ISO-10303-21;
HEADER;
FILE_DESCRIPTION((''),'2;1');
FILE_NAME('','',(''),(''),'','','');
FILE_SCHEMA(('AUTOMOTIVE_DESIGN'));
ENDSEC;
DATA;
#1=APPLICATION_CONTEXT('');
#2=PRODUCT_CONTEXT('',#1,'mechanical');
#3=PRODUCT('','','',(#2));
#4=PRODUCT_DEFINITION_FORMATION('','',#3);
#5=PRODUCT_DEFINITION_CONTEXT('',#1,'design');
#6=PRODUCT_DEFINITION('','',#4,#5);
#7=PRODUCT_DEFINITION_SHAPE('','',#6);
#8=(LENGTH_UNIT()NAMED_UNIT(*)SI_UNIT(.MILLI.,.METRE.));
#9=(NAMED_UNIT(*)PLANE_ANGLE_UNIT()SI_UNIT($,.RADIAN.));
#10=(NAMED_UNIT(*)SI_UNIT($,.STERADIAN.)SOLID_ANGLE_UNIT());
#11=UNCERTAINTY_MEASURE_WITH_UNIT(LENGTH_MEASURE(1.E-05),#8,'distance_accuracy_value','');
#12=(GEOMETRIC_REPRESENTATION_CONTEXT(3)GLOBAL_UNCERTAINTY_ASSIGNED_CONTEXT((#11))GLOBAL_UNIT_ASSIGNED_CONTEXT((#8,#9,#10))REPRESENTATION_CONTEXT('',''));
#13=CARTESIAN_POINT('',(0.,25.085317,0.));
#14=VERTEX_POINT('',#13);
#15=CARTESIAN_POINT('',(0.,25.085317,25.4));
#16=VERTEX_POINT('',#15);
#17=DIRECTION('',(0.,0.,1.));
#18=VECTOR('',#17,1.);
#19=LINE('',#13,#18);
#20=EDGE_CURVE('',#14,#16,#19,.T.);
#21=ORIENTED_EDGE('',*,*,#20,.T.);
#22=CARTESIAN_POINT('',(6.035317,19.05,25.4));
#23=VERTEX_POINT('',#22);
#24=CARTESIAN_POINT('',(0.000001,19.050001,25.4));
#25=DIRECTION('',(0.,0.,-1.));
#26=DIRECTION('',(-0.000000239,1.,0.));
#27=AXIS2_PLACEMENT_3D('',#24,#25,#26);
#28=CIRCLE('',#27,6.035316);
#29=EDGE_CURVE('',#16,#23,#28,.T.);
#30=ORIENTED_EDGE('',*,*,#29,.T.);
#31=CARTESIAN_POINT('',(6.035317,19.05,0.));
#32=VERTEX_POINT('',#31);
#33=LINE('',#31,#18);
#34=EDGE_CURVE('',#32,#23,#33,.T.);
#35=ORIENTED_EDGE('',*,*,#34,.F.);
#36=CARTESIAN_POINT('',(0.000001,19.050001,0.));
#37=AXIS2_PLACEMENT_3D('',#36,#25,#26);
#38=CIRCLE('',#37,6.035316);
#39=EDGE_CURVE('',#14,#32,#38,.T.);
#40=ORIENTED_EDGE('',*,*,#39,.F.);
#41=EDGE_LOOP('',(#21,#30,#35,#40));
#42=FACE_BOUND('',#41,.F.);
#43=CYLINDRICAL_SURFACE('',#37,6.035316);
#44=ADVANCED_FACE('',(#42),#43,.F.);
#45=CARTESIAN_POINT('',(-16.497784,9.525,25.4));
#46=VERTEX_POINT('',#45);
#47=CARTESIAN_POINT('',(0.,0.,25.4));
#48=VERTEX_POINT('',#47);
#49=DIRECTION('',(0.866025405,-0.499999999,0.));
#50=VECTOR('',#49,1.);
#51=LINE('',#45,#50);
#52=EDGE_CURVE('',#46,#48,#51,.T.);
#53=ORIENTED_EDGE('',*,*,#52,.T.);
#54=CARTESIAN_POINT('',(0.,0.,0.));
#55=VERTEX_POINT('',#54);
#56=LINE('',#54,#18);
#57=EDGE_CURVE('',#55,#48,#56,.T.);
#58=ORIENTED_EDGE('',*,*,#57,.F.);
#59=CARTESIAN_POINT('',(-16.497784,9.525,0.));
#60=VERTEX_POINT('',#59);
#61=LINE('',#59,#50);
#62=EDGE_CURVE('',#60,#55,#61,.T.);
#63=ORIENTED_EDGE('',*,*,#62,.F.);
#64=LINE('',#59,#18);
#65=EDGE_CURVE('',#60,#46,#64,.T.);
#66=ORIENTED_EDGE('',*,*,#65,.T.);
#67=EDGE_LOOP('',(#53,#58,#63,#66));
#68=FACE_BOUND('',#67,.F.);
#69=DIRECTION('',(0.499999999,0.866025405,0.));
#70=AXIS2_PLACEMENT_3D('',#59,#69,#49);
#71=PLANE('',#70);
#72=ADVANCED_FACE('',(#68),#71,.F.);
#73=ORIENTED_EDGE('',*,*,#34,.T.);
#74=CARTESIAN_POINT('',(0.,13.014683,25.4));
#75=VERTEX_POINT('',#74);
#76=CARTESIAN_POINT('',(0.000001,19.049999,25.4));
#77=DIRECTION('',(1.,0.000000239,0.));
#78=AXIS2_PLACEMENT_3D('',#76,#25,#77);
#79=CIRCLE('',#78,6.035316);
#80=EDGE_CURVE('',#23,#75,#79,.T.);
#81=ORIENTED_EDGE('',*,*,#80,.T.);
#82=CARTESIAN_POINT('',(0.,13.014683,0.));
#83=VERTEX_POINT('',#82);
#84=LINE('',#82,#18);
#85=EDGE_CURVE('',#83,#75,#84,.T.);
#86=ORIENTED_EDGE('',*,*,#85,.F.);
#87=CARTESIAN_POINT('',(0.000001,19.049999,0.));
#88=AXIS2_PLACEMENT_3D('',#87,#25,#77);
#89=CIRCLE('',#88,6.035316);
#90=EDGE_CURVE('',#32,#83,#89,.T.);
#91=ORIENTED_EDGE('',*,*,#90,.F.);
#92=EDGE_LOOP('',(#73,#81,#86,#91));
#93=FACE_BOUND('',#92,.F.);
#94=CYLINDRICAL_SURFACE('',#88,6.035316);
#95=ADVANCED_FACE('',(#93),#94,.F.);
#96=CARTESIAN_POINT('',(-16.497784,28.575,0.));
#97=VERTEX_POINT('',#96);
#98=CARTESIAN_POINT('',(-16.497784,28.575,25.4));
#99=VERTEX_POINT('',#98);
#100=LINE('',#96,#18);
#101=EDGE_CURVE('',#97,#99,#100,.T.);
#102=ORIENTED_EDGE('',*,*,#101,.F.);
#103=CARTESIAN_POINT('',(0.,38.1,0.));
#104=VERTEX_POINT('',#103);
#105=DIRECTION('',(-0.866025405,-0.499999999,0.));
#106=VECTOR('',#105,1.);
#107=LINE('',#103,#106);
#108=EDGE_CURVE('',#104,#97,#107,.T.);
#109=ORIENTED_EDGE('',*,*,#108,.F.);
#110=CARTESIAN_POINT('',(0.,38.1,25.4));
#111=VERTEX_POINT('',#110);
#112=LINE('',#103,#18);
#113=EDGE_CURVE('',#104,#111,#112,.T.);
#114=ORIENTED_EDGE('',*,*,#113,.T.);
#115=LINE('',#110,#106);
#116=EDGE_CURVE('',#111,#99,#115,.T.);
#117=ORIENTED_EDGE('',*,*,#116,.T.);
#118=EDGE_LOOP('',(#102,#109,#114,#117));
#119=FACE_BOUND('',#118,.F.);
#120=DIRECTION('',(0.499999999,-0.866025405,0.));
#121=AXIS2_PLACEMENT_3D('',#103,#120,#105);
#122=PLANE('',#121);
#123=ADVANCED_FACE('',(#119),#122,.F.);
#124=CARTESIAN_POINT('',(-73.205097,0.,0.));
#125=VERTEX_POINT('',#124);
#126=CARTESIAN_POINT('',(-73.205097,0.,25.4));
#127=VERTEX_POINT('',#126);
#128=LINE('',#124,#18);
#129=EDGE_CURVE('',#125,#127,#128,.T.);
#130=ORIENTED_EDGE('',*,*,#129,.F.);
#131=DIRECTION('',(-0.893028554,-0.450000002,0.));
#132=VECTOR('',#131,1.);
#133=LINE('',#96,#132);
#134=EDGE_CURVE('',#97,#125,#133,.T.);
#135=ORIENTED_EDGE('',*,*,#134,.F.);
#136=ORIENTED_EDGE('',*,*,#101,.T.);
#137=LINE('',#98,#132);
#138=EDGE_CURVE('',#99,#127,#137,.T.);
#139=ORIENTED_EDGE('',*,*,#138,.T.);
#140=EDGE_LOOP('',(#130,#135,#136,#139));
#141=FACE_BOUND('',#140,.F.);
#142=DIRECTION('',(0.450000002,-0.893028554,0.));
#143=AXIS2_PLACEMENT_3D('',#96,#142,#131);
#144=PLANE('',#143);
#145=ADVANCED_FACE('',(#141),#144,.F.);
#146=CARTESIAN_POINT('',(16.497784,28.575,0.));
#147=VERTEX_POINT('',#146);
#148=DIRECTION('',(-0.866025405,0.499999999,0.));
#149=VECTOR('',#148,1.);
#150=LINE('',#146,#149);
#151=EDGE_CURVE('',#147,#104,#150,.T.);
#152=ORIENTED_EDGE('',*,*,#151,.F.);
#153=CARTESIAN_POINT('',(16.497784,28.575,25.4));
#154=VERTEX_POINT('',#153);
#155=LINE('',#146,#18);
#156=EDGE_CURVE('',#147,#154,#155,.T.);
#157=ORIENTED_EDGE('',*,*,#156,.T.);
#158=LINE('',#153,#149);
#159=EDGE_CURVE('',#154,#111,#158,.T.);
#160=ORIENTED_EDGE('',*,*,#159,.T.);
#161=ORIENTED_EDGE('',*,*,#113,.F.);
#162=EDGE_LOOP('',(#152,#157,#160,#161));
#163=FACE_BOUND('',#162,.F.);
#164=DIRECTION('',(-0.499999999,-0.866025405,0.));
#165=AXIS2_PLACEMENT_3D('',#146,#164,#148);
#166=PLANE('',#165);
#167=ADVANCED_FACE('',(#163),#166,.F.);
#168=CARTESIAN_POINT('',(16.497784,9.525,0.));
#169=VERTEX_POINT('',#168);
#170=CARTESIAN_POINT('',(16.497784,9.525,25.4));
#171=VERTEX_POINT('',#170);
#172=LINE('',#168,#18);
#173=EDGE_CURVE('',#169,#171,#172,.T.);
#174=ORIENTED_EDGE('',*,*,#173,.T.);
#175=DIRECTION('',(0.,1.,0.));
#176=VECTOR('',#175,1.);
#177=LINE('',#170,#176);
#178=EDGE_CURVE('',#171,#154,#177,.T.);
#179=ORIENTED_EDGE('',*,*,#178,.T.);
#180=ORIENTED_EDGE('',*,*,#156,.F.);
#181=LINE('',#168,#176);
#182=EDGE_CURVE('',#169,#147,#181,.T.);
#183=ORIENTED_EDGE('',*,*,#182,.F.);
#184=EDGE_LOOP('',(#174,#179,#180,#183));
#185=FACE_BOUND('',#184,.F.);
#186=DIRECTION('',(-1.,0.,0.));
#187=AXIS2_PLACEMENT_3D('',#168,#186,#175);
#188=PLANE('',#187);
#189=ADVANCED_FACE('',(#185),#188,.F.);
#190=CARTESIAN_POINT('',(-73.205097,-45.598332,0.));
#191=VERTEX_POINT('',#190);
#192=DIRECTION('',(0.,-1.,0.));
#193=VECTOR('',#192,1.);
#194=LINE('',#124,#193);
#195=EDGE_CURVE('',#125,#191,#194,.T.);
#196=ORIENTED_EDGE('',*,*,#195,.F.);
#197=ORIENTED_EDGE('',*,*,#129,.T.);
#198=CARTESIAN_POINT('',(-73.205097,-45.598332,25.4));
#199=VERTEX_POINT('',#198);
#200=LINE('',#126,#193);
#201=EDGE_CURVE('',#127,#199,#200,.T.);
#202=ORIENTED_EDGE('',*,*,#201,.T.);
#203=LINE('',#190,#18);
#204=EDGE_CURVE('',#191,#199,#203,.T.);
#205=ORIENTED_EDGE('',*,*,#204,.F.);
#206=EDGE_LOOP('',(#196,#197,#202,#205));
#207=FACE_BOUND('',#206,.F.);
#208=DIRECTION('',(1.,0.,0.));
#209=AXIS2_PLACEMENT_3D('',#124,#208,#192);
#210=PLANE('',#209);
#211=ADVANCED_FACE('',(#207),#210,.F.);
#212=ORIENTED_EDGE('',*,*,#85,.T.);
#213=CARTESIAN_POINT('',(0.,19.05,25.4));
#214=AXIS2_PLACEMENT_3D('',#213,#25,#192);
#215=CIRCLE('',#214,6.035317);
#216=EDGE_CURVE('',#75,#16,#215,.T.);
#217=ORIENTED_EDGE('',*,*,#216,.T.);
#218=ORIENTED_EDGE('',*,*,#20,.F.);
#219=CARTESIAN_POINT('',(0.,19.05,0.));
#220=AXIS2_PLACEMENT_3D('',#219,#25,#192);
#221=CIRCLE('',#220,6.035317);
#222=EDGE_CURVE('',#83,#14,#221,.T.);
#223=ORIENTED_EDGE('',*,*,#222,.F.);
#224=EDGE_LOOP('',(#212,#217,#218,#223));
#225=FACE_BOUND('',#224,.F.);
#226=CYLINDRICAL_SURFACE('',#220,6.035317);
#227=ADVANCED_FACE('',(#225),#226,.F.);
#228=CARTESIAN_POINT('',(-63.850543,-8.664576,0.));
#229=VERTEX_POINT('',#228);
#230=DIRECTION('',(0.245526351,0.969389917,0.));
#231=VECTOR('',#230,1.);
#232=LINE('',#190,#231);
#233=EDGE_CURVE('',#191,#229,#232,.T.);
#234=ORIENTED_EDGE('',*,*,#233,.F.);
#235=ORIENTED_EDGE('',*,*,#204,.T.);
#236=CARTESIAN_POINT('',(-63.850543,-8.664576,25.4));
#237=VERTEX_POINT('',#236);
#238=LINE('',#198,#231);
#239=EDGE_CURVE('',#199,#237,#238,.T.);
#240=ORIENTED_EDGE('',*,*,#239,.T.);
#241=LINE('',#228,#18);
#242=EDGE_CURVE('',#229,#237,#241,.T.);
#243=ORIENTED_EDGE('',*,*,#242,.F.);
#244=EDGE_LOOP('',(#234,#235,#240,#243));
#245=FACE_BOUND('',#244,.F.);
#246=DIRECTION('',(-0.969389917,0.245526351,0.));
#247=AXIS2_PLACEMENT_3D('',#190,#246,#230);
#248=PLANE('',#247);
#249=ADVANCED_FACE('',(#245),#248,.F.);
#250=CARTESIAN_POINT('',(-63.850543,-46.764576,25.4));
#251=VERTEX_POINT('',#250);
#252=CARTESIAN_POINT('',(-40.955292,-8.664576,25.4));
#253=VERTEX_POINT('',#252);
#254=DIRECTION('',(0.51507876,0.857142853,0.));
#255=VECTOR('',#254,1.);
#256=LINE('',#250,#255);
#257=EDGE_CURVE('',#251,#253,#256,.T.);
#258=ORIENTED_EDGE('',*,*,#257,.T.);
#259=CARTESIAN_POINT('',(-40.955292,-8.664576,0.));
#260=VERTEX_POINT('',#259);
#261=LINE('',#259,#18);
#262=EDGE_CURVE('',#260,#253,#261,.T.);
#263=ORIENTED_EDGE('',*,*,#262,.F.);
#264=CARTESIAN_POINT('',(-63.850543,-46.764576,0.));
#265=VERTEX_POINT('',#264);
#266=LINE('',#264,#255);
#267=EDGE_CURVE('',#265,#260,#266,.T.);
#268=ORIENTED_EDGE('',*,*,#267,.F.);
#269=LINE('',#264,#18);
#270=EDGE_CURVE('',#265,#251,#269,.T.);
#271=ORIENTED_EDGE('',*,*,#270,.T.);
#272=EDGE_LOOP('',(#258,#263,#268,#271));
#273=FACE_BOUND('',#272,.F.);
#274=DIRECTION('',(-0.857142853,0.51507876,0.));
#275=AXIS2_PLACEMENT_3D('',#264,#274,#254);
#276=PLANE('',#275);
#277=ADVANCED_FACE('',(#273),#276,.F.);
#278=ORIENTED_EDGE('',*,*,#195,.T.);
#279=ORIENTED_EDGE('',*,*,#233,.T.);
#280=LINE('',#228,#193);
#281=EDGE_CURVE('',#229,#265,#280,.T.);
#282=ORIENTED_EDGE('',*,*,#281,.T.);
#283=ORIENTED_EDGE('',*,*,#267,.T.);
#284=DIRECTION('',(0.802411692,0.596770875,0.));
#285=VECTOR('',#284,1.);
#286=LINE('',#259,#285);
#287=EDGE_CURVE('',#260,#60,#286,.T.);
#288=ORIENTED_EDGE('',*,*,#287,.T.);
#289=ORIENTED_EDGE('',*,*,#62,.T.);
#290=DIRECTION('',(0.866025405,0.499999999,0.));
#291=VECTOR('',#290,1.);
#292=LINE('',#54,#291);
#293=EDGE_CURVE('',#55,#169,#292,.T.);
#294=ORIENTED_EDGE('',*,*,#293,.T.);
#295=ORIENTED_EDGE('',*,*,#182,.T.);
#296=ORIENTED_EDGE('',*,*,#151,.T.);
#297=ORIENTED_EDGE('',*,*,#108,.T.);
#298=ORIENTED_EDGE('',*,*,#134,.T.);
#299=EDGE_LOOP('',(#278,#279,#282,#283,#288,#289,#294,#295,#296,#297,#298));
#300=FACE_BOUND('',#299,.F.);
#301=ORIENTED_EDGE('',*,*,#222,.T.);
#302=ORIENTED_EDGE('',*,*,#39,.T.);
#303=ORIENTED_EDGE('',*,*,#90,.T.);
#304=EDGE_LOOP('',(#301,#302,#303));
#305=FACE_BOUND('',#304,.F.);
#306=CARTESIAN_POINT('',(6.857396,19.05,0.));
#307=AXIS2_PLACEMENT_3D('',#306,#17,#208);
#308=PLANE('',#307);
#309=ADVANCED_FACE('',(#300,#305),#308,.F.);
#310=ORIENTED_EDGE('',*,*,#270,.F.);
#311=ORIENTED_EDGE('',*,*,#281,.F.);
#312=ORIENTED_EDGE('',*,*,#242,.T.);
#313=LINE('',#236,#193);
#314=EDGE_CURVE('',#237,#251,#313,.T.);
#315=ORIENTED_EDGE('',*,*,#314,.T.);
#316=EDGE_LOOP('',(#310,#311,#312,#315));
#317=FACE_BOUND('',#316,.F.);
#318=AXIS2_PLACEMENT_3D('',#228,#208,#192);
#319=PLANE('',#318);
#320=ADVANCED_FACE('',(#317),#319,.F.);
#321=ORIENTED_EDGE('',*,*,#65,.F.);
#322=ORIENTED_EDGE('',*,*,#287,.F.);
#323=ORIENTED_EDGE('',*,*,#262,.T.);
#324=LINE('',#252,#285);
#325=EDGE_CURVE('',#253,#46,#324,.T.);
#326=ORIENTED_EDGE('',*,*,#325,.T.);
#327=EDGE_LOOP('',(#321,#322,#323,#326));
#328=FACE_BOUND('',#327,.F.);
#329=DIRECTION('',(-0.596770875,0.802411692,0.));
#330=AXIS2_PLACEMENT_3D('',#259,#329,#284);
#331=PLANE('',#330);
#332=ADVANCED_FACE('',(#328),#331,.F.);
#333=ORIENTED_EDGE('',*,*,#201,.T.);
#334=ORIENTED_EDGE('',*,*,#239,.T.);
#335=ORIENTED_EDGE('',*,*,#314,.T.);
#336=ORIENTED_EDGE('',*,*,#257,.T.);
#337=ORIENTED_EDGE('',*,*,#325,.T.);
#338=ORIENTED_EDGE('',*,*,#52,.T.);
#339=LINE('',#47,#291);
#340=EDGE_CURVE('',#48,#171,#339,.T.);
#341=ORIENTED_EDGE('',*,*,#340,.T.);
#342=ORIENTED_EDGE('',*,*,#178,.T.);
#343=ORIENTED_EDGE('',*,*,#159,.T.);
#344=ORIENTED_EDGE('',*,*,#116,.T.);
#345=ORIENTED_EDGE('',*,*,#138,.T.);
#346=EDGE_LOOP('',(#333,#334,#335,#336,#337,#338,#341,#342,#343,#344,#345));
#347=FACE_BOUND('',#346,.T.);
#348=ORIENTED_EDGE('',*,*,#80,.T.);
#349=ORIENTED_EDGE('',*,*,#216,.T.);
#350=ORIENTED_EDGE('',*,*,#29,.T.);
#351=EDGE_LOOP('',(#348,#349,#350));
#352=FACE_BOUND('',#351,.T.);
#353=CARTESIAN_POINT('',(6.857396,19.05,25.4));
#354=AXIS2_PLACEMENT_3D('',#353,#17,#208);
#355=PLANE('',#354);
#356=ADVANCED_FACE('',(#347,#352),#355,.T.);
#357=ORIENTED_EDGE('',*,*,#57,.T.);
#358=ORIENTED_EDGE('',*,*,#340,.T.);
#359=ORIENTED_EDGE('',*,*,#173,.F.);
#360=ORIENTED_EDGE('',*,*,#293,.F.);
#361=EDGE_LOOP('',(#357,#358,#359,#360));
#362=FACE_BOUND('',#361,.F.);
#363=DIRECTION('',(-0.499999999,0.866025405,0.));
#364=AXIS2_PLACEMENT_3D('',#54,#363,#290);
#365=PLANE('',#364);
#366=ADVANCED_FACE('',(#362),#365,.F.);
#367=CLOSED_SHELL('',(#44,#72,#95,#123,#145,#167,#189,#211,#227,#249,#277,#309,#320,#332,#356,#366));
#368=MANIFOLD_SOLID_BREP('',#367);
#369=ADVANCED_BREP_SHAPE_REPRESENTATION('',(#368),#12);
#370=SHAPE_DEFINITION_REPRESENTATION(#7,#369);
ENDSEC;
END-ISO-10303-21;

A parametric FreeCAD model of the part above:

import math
import FreeCAD as App
import Part
import Sketcher
Q = App.Units.Quantity


def add_polygon(sketch, points):
    """Adds a closed chain of lines whose ends are joined by coincident constraints."""
    first, n = sketch.GeometryCount, len(points)
    for a, b in zip(points, points[1:] + points[:1]):
        sketch.addGeometry(Part.LineSegment(App.Vector(*a, 0), App.Vector(*b, 0)), False)
    for i in range(n):
        sketch.addConstraint(Sketcher.Constraint("Coincident", first + i, 2, first + (i + 1) % n, 1))

doc = App.newDocument("Part")
body = doc.addObject("PartDesign::Body", "Body")

sketch1 = doc.addObject("Sketcher::SketchObject", "Sketch")
body.addObject(sketch1)
sketch1.AttachmentSupport = (doc.XY_Plane, [""])
sketch1.MapMode = "FlatFace"
add_polygon(sketch1, [(0, 0), (16.497784, 9.525), (16.497784, 28.575), (0, 38.1), (-16.497784, 28.575), (-73.205097, 0), (-73.205097, -45.598332), (-63.850543, -8.664576), (-63.850543, -46.764576), (-40.955292, -8.664576), (-16.497784, 9.525)])
sketch1.addGeometry(Part.ArcOfCircle(Part.Circle(App.Vector(0.000001, 19.050001, 0), App.Vector(0, 0, 1), 6.035316), math.radians(-0.000014), math.radians(90.000014)), False)
sketch1.addGeometry(Part.ArcOfCircle(Part.Circle(App.Vector(0.000001, 19.049999, 0), App.Vector(0, 0, 1), 6.035316), math.radians(-90.000014), math.radians(0.000014)), False)
sketch1.addGeometry(Part.ArcOfCircle(Part.Circle(App.Vector(0, 19.05, 0), App.Vector(0, 0, 1), 6.035317), math.radians(90), math.radians(270)), False)
sketch1.addConstraint(Sketcher.Constraint("Tangent", 11, 1, 12, 2))
sketch1.addConstraint(Sketcher.Constraint("Tangent", 12, 1, 13, 2))
sketch1.addConstraint(Sketcher.Constraint("Tangent", 13, 1, 11, 2))
sketch1.addConstraint(Sketcher.Constraint("Vertical", 1))
sketch1.addConstraint(Sketcher.Constraint("Vertical", 5))
sketch1.addConstraint(Sketcher.Constraint("Vertical", 7))
sketch1.addConstraint(Sketcher.Constraint("Coincident", 10, 2, -1, 1))
sketch1.addConstraint(Sketcher.Constraint("Symmetric", 1, 2, 3, 2, -2))
sketch1.addConstraint(Sketcher.Constraint("Symmetric", 0, 2, 9, 2, -2))
sketch1.addConstraint(Sketcher.Constraint("PointOnObject", 11, 3, -2))
sketch1.addConstraint(Sketcher.Constraint("PointOnObject", 2, 2, -2))
sketch1.addConstraint(Sketcher.Constraint("PointOnObject", 4, 2, -1))
sketch1.addConstraint(Sketcher.Constraint("PointOnObject", 12, 1, -2))
sketch1.addConstraint(Sketcher.Constraint("PointOnObject", 13, 1, -2))
sketch1.addConstraint(Sketcher.Constraint("Parallel", 0, 3))
sketch1.addConstraint(Sketcher.Constraint("Horizontal", 6, 2, 8, 2))
sketch1.addConstraint(Sketcher.Constraint("Horizontal", 13, 3, 11, 1))
sketch1.addConstraint(Sketcher.Constraint("DistanceY", 7, 2, 7, 1, Q("1.5 in")))
sketch1.addConstraint(Sketcher.Constraint("Angle", 0, Q("30 deg")))
sketch1.addConstraint(Sketcher.Constraint("Distance", 4, Q("2.5 in")))
sketch1.addConstraint(Sketcher.Constraint("Distance", 6, Q("1.5 in")))
sketch1.addConstraint(Sketcher.Constraint("Distance", 9, Q("1.2 in")))
sketch1.addConstraint(Sketcher.Constraint("DistanceY", 1, 1, 1, 2, Q("0.75 in")))
sketch1.addConstraint(Sketcher.Constraint("DistanceY", -1, 1, 2, 2, Q("1.5 in")))
sketch1.addConstraint(Sketcher.Constraint("Distance", 8, Q("1.75 in")))
sketch1.addConstraint(Sketcher.Constraint("DistanceY", -1, 1, 11, 3, Q("0.7500001 in")))
sketch1.addConstraint(Sketcher.Constraint("Radius", 11, Q("6.035316 mm")))
sketch1.addConstraint(Sketcher.Constraint("DistanceY", 5, 2, 5, 1, Q("45.598332 mm")))
pad1 = doc.addObject("PartDesign::Pad", "Pad")
body.addObject(pad1)
pad1.Profile = sketch1
pad1.Length = Q("1 in")

doc.recompute()
